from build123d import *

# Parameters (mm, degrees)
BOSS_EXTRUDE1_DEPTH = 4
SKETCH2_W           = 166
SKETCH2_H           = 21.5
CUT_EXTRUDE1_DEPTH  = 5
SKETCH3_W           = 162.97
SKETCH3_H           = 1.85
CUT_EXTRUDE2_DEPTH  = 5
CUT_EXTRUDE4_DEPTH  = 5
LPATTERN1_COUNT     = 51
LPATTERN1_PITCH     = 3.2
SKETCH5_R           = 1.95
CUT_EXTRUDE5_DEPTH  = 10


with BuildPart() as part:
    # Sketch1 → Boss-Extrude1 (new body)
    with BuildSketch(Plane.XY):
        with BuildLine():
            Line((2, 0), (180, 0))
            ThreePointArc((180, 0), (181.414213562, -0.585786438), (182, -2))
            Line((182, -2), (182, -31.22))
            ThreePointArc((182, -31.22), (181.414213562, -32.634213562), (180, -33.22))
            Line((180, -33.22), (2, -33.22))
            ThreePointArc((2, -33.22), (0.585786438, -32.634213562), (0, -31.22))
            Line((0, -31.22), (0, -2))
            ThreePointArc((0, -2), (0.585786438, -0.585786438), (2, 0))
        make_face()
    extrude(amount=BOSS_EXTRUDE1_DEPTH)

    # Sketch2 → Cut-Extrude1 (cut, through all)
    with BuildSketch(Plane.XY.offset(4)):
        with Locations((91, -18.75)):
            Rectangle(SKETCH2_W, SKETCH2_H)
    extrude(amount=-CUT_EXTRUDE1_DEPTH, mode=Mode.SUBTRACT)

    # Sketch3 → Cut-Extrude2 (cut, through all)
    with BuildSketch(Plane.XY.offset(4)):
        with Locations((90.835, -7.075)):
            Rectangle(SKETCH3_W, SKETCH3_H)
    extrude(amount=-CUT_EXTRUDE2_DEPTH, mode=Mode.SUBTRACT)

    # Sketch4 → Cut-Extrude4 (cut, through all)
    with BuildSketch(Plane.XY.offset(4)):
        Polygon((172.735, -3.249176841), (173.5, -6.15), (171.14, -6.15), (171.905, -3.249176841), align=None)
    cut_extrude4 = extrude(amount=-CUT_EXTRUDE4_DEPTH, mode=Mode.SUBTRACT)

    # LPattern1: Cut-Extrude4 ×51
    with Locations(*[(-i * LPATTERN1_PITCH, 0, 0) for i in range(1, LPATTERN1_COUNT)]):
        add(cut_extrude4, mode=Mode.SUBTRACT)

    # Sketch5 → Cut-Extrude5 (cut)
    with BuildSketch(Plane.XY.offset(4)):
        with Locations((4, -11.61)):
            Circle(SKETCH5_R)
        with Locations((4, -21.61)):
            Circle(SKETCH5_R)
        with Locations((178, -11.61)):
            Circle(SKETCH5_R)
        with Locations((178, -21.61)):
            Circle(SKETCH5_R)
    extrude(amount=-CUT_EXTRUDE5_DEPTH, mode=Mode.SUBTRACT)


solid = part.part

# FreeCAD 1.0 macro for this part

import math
import FreeCAD as App
import Part
import Sketcher

V = App.Vector

doc = App.newDocument("Part")
params = doc.addObject("Spreadsheet::Sheet", "Params")
for row, (alias, value) in enumerate([
    ("sketch1_radius", "2 mm"),
    ("sketch1_width", "178 mm"),
    ("sketch1_height", "29.22 mm"),
    ("pad1_length", "4 mm"),
    ("sketch2_width", "166 mm"),
    ("sketch2_height", "21.5 mm"),
    ("sketch3_width", "162.97 mm"),
    ("sketch3_height", "1.85 mm"),
    ("sketch4_length", "3 mm"),
    ("sketch4_width", "0.83 mm"),
    ("sketch4_width2", "2.36 mm"),
    ("linearpattern_pitch", "3.2 mm"),
    ("sketch5_diameter", "3.9 mm"),
    ("pocket4_length", "10 mm"),
], start=1):
    params.set(f"A{row}", alias)
    params.set(f"B{row}", "=" + value)
    params.setAlias(f"B{row}", alias)

body = doc.addObject("PartDesign::Body", "Body")

sketch1 = body.newObject("Sketcher::SketchObject", "Sketch")
sketch1.AttachmentSupport = (doc.getObject("XY_Plane"), [""])
sketch1.MapMode = "FlatFace"
sketch1.addGeometry([
    Part.LineSegment(V(180, 0, 0), V(2, 0, 0)),
    Part.ArcOfCircle(Part.Circle(V(2, -2, 0), V(0, 0, 1), 2), math.radians(90), math.radians(180)),
    Part.LineSegment(V(0, -2, 0), V(0, -31.2, 0)),
    Part.ArcOfCircle(Part.Circle(V(2, -31.2, 0), V(0, 0, 1), 2), math.radians(-180), math.radians(-90)),
    Part.LineSegment(V(2, -33.2, 0), V(180, -33.2, 0)),
    Part.ArcOfCircle(Part.Circle(V(180, -31.2, 0), V(0, 0, 1), 2), math.radians(-90), math.radians(0)),
    Part.LineSegment(V(182, -31.2, 0), V(182, -2, 0)),
    Part.ArcOfCircle(Part.Circle(V(180, -2, 0), V(0, 0, 1), 2), math.radians(0), math.radians(90)),
], False)
sketch1.addConstraint([
    Sketcher.Constraint("Tangent", 0, 2, 1, 1),
    Sketcher.Constraint("Tangent", 1, 2, 2, 1),
    Sketcher.Constraint("Tangent", 2, 2, 3, 1),
    Sketcher.Constraint("Tangent", 3, 2, 4, 1),
    Sketcher.Constraint("Tangent", 4, 2, 5, 1),
    Sketcher.Constraint("Tangent", 5, 2, 6, 1),
    Sketcher.Constraint("Tangent", 6, 2, 7, 1),
    Sketcher.Constraint("Tangent", 7, 2, 0, 1),
    Sketcher.Constraint("Horizontal", 0),
    Sketcher.Constraint("Vertical", 2),
    Sketcher.Constraint("Horizontal", 4),
    Sketcher.Constraint("Vertical", 6),
    Sketcher.Constraint("Equal", 1, 3),
    Sketcher.Constraint("Equal", 3, 5),
    Sketcher.Constraint("Equal", 5, 7),
    Sketcher.Constraint("PointOnObject", 0, 2, -1),
    Sketcher.Constraint("PointOnObject", 1, 2, -2),
    Sketcher.Constraint("Radius", 1, 2.0),
    Sketcher.Constraint("DistanceX", 0, 2, 0, 1, 178.0),
    Sketcher.Constraint("DistanceY", 2, 2, 2, 1, 29.22),
])
sketch1.setExpression("Constraints[17]", "Params.sketch1_radius")
sketch1.setExpression("Constraints[18]", "Params.sketch1_width")
sketch1.setExpression("Constraints[19]", "Params.sketch1_height")
pad1 = body.newObject("PartDesign::Pad", "Pad")
pad1.Profile = sketch1
pad1.setExpression("Length", "Params.pad1_length")

sketch2 = body.newObject("Sketcher::SketchObject", "Sketch001")
sketch2.AttachmentSupport = (doc.getObject("XY_Plane"), [""])
sketch2.MapMode = "FlatFace"
sketch2.AttachmentOffset = App.Placement(V(0, 0, 4), App.Rotation())
sketch2.addGeometry([
    Part.LineSegment(V(8, -8, 0), V(8, -30, 0)),
    Part.LineSegment(V(8, -30, 0), V(174, -30, 0)),
    Part.LineSegment(V(174, -30, 0), V(174, -8, 0)),
    Part.LineSegment(V(174, -8, 0), V(8, -8, 0)),
], False)
sketch2.addConstraint([
    Sketcher.Constraint("Coincident", 0, 2, 1, 1),
    Sketcher.Constraint("Coincident", 1, 2, 2, 1),
    Sketcher.Constraint("Coincident", 2, 2, 3, 1),
    Sketcher.Constraint("Coincident", 3, 2, 0, 1),
    Sketcher.Constraint("Vertical", 0),
    Sketcher.Constraint("Horizontal", 1),
    Sketcher.Constraint("Vertical", 2),
    Sketcher.Constraint("Horizontal", 3),
    Sketcher.Constraint("DistanceX", 1, 1, 1, 2, 166.0),
    Sketcher.Constraint("DistanceY", 0, 2, 0, 1, 21.5),
    Sketcher.Constraint("DistanceX", -1, 1, 0, 2, 8.0),
    Sketcher.Constraint("DistanceY", 2, 2, -1, 1, 8.0),
])
sketch2.setExpression("Constraints[8]", "Params.sketch2_width")
sketch2.setExpression("Constraints[9]", "Params.sketch2_height")
pocket1 = body.newObject("PartDesign::Pocket", "Pocket")
pocket1.Profile = sketch2
pocket1.Type = "ThroughAll"

sketch3 = body.newObject("Sketcher::SketchObject", "Sketch002")
sketch3.AttachmentSupport = (doc.getObject("XY_Plane"), [""])
sketch3.MapMode = "FlatFace"
sketch3.AttachmentOffset = App.Placement(V(0, 0, 4), App.Rotation())
sketch3.addGeometry([
    Part.LineSegment(V(9.3, -6.2, 0), V(9.3, -8, 0)),
    Part.LineSegment(V(9.3, -8, 0), V(172.3, -8, 0)),
    Part.LineSegment(V(172.3, -8, 0), V(172.3, -6.2, 0)),
    Part.LineSegment(V(172.3, -6.2, 0), V(9.3, -6.2, 0)),
], False)
sketch3.addConstraint([
    Sketcher.Constraint("Coincident", 0, 2, 1, 1),
    Sketcher.Constraint("Coincident", 1, 2, 2, 1),
    Sketcher.Constraint("Coincident", 2, 2, 3, 1),
    Sketcher.Constraint("Coincident", 3, 2, 0, 1),
    Sketcher.Constraint("Vertical", 0),
    Sketcher.Constraint("Horizontal", 1),
    Sketcher.Constraint("Vertical", 2),
    Sketcher.Constraint("Horizontal", 3),
    Sketcher.Constraint("DistanceY", 0, 2, -1, 1, 8.0),
    Sketcher.Constraint("DistanceX", 1, 1, 1, 2, 162.97),
    Sketcher.Constraint("DistanceY", 0, 2, 0, 1, 1.85),
    Sketcher.Constraint("DistanceX", -1, 1, 0, 2, 9.35),
])
sketch3.setExpression("Constraints[9]", "Params.sketch3_width")
sketch3.setExpression("Constraints[10]", "Params.sketch3_height")
pocket2 = body.newObject("PartDesign::Pocket", "Pocket001")
pocket2.Profile = sketch3
pocket2.Type = "ThroughAll"

sketch4 = body.newObject("Sketcher::SketchObject", "Sketch003")
sketch4.AttachmentSupport = (doc.getObject("XY_Plane"), [""])
sketch4.MapMode = "FlatFace"
sketch4.AttachmentOffset = App.Placement(V(0, 0, 4), App.Rotation())
sketch4.addGeometry([
    Part.LineSegment(V(173.5, -6.2, 0), V(172.7, -3.2, 0)),
    Part.LineSegment(V(172.7, -3.2, 0), V(171.9, -3.2, 0)),
    Part.LineSegment(V(171.9, -3.2, 0), V(171.1, -6.2, 0)),
    Part.LineSegment(V(171.1, -6.2, 0), V(173.5, -6.2, 0)),
], False)
sketch4.addConstraint([
    Sketcher.Constraint("Coincident", 0, 2, 1, 1),
    Sketcher.Constraint("Coincident", 1, 2, 2, 1),
    Sketcher.Constraint("Coincident", 2, 2, 3, 1),
    Sketcher.Constraint("Coincident", 3, 2, 0, 1),
    Sketcher.Constraint("Horizontal", 1),
    Sketcher.Constraint("Horizontal", 3),
    Sketcher.Constraint("Equal", 0, 2),
    Sketcher.Constraint("Distance", 0, 3.0),
    Sketcher.Constraint("DistanceX", 1, 2, 1, 1, 0.83),
    Sketcher.Constraint("DistanceX", 3, 1, 3, 2, 2.36),
    Sketcher.Constraint("DistanceX", -1, 1, 3, 2, 173.5),
    Sketcher.Constraint("DistanceY", 2, 2, -1, 1, 6.15),
])
sketch4.setExpression("Constraints[7]", "Params.sketch4_length")
sketch4.setExpression("Constraints[8]", "Params.sketch4_width")
sketch4.setExpression("Constraints[9]", "Params.sketch4_width2")
pocket3 = body.newObject("PartDesign::Pocket", "Pocket002")
pocket3.Profile = sketch4
pocket3.Type = "ThroughAll"
doc.recompute()

linearpattern = body.newObject("PartDesign::LinearPattern", "LinearPattern")
linearpattern.Originals = [pocket3]
linearpattern.Direction = (doc.getObject("X_Axis"), [""])
linearpattern.Mode = "offset"
linearpattern.setExpression("Offset", "Params.linearpattern_pitch")
linearpattern.Occurrences = 51
linearpattern.Reversed = True
body.Tip = linearpattern

sketch5 = body.newObject("Sketcher::SketchObject", "Sketch004")
sketch5.AttachmentSupport = (doc.getObject("XY_Plane"), [""])
sketch5.MapMode = "FlatFace"
sketch5.AttachmentOffset = App.Placement(V(0, 0, 4), App.Rotation())
sketch5.addGeometry([
    Part.Circle(V(4, -11.6, 0), V(0, 0, 1), 1.9),
    Part.Circle(V(4, -21.6, 0), V(0, 0, 1), 1.9),
    Part.Circle(V(178, -11.6, 0), V(0, 0, 1), 1.9),
    Part.Circle(V(178, -21.6, 0), V(0, 0, 1), 1.9),
], False)
sketch5.addConstraint([
    Sketcher.Constraint("Equal", 0, 1),
    Sketcher.Constraint("Equal", 1, 2),
    Sketcher.Constraint("Equal", 2, 3),
    Sketcher.Constraint("Horizontal", 0, 3, 2, 3),
    Sketcher.Constraint("Horizontal", 1, 3, 3, 3),
    Sketcher.Constraint("Vertical", 0, 3, 1, 3),
    Sketcher.Constraint("Vertical", 2, 3, 3, 3),
    Sketcher.Constraint("Diameter", 0, 3.9),
    Sketcher.Constraint("DistanceX", -1, 1, 0, 3, 4.0),
    Sketcher.Constraint("DistanceX", -1, 1, 2, 3, 178.0),
    Sketcher.Constraint("DistanceY", 1, 3, 0, 3, 10.0),
    Sketcher.Constraint("DistanceY", 0, 3, -1, 1, 11.61),
])
sketch5.setExpression("Constraints[7]", "Params.sketch5_diameter")
pocket4 = body.newObject("PartDesign::Pocket", "Pocket003")
pocket4.Profile = sketch5
pocket4.setExpression("Length", "Params.pocket4_length")

doc.recompute()
